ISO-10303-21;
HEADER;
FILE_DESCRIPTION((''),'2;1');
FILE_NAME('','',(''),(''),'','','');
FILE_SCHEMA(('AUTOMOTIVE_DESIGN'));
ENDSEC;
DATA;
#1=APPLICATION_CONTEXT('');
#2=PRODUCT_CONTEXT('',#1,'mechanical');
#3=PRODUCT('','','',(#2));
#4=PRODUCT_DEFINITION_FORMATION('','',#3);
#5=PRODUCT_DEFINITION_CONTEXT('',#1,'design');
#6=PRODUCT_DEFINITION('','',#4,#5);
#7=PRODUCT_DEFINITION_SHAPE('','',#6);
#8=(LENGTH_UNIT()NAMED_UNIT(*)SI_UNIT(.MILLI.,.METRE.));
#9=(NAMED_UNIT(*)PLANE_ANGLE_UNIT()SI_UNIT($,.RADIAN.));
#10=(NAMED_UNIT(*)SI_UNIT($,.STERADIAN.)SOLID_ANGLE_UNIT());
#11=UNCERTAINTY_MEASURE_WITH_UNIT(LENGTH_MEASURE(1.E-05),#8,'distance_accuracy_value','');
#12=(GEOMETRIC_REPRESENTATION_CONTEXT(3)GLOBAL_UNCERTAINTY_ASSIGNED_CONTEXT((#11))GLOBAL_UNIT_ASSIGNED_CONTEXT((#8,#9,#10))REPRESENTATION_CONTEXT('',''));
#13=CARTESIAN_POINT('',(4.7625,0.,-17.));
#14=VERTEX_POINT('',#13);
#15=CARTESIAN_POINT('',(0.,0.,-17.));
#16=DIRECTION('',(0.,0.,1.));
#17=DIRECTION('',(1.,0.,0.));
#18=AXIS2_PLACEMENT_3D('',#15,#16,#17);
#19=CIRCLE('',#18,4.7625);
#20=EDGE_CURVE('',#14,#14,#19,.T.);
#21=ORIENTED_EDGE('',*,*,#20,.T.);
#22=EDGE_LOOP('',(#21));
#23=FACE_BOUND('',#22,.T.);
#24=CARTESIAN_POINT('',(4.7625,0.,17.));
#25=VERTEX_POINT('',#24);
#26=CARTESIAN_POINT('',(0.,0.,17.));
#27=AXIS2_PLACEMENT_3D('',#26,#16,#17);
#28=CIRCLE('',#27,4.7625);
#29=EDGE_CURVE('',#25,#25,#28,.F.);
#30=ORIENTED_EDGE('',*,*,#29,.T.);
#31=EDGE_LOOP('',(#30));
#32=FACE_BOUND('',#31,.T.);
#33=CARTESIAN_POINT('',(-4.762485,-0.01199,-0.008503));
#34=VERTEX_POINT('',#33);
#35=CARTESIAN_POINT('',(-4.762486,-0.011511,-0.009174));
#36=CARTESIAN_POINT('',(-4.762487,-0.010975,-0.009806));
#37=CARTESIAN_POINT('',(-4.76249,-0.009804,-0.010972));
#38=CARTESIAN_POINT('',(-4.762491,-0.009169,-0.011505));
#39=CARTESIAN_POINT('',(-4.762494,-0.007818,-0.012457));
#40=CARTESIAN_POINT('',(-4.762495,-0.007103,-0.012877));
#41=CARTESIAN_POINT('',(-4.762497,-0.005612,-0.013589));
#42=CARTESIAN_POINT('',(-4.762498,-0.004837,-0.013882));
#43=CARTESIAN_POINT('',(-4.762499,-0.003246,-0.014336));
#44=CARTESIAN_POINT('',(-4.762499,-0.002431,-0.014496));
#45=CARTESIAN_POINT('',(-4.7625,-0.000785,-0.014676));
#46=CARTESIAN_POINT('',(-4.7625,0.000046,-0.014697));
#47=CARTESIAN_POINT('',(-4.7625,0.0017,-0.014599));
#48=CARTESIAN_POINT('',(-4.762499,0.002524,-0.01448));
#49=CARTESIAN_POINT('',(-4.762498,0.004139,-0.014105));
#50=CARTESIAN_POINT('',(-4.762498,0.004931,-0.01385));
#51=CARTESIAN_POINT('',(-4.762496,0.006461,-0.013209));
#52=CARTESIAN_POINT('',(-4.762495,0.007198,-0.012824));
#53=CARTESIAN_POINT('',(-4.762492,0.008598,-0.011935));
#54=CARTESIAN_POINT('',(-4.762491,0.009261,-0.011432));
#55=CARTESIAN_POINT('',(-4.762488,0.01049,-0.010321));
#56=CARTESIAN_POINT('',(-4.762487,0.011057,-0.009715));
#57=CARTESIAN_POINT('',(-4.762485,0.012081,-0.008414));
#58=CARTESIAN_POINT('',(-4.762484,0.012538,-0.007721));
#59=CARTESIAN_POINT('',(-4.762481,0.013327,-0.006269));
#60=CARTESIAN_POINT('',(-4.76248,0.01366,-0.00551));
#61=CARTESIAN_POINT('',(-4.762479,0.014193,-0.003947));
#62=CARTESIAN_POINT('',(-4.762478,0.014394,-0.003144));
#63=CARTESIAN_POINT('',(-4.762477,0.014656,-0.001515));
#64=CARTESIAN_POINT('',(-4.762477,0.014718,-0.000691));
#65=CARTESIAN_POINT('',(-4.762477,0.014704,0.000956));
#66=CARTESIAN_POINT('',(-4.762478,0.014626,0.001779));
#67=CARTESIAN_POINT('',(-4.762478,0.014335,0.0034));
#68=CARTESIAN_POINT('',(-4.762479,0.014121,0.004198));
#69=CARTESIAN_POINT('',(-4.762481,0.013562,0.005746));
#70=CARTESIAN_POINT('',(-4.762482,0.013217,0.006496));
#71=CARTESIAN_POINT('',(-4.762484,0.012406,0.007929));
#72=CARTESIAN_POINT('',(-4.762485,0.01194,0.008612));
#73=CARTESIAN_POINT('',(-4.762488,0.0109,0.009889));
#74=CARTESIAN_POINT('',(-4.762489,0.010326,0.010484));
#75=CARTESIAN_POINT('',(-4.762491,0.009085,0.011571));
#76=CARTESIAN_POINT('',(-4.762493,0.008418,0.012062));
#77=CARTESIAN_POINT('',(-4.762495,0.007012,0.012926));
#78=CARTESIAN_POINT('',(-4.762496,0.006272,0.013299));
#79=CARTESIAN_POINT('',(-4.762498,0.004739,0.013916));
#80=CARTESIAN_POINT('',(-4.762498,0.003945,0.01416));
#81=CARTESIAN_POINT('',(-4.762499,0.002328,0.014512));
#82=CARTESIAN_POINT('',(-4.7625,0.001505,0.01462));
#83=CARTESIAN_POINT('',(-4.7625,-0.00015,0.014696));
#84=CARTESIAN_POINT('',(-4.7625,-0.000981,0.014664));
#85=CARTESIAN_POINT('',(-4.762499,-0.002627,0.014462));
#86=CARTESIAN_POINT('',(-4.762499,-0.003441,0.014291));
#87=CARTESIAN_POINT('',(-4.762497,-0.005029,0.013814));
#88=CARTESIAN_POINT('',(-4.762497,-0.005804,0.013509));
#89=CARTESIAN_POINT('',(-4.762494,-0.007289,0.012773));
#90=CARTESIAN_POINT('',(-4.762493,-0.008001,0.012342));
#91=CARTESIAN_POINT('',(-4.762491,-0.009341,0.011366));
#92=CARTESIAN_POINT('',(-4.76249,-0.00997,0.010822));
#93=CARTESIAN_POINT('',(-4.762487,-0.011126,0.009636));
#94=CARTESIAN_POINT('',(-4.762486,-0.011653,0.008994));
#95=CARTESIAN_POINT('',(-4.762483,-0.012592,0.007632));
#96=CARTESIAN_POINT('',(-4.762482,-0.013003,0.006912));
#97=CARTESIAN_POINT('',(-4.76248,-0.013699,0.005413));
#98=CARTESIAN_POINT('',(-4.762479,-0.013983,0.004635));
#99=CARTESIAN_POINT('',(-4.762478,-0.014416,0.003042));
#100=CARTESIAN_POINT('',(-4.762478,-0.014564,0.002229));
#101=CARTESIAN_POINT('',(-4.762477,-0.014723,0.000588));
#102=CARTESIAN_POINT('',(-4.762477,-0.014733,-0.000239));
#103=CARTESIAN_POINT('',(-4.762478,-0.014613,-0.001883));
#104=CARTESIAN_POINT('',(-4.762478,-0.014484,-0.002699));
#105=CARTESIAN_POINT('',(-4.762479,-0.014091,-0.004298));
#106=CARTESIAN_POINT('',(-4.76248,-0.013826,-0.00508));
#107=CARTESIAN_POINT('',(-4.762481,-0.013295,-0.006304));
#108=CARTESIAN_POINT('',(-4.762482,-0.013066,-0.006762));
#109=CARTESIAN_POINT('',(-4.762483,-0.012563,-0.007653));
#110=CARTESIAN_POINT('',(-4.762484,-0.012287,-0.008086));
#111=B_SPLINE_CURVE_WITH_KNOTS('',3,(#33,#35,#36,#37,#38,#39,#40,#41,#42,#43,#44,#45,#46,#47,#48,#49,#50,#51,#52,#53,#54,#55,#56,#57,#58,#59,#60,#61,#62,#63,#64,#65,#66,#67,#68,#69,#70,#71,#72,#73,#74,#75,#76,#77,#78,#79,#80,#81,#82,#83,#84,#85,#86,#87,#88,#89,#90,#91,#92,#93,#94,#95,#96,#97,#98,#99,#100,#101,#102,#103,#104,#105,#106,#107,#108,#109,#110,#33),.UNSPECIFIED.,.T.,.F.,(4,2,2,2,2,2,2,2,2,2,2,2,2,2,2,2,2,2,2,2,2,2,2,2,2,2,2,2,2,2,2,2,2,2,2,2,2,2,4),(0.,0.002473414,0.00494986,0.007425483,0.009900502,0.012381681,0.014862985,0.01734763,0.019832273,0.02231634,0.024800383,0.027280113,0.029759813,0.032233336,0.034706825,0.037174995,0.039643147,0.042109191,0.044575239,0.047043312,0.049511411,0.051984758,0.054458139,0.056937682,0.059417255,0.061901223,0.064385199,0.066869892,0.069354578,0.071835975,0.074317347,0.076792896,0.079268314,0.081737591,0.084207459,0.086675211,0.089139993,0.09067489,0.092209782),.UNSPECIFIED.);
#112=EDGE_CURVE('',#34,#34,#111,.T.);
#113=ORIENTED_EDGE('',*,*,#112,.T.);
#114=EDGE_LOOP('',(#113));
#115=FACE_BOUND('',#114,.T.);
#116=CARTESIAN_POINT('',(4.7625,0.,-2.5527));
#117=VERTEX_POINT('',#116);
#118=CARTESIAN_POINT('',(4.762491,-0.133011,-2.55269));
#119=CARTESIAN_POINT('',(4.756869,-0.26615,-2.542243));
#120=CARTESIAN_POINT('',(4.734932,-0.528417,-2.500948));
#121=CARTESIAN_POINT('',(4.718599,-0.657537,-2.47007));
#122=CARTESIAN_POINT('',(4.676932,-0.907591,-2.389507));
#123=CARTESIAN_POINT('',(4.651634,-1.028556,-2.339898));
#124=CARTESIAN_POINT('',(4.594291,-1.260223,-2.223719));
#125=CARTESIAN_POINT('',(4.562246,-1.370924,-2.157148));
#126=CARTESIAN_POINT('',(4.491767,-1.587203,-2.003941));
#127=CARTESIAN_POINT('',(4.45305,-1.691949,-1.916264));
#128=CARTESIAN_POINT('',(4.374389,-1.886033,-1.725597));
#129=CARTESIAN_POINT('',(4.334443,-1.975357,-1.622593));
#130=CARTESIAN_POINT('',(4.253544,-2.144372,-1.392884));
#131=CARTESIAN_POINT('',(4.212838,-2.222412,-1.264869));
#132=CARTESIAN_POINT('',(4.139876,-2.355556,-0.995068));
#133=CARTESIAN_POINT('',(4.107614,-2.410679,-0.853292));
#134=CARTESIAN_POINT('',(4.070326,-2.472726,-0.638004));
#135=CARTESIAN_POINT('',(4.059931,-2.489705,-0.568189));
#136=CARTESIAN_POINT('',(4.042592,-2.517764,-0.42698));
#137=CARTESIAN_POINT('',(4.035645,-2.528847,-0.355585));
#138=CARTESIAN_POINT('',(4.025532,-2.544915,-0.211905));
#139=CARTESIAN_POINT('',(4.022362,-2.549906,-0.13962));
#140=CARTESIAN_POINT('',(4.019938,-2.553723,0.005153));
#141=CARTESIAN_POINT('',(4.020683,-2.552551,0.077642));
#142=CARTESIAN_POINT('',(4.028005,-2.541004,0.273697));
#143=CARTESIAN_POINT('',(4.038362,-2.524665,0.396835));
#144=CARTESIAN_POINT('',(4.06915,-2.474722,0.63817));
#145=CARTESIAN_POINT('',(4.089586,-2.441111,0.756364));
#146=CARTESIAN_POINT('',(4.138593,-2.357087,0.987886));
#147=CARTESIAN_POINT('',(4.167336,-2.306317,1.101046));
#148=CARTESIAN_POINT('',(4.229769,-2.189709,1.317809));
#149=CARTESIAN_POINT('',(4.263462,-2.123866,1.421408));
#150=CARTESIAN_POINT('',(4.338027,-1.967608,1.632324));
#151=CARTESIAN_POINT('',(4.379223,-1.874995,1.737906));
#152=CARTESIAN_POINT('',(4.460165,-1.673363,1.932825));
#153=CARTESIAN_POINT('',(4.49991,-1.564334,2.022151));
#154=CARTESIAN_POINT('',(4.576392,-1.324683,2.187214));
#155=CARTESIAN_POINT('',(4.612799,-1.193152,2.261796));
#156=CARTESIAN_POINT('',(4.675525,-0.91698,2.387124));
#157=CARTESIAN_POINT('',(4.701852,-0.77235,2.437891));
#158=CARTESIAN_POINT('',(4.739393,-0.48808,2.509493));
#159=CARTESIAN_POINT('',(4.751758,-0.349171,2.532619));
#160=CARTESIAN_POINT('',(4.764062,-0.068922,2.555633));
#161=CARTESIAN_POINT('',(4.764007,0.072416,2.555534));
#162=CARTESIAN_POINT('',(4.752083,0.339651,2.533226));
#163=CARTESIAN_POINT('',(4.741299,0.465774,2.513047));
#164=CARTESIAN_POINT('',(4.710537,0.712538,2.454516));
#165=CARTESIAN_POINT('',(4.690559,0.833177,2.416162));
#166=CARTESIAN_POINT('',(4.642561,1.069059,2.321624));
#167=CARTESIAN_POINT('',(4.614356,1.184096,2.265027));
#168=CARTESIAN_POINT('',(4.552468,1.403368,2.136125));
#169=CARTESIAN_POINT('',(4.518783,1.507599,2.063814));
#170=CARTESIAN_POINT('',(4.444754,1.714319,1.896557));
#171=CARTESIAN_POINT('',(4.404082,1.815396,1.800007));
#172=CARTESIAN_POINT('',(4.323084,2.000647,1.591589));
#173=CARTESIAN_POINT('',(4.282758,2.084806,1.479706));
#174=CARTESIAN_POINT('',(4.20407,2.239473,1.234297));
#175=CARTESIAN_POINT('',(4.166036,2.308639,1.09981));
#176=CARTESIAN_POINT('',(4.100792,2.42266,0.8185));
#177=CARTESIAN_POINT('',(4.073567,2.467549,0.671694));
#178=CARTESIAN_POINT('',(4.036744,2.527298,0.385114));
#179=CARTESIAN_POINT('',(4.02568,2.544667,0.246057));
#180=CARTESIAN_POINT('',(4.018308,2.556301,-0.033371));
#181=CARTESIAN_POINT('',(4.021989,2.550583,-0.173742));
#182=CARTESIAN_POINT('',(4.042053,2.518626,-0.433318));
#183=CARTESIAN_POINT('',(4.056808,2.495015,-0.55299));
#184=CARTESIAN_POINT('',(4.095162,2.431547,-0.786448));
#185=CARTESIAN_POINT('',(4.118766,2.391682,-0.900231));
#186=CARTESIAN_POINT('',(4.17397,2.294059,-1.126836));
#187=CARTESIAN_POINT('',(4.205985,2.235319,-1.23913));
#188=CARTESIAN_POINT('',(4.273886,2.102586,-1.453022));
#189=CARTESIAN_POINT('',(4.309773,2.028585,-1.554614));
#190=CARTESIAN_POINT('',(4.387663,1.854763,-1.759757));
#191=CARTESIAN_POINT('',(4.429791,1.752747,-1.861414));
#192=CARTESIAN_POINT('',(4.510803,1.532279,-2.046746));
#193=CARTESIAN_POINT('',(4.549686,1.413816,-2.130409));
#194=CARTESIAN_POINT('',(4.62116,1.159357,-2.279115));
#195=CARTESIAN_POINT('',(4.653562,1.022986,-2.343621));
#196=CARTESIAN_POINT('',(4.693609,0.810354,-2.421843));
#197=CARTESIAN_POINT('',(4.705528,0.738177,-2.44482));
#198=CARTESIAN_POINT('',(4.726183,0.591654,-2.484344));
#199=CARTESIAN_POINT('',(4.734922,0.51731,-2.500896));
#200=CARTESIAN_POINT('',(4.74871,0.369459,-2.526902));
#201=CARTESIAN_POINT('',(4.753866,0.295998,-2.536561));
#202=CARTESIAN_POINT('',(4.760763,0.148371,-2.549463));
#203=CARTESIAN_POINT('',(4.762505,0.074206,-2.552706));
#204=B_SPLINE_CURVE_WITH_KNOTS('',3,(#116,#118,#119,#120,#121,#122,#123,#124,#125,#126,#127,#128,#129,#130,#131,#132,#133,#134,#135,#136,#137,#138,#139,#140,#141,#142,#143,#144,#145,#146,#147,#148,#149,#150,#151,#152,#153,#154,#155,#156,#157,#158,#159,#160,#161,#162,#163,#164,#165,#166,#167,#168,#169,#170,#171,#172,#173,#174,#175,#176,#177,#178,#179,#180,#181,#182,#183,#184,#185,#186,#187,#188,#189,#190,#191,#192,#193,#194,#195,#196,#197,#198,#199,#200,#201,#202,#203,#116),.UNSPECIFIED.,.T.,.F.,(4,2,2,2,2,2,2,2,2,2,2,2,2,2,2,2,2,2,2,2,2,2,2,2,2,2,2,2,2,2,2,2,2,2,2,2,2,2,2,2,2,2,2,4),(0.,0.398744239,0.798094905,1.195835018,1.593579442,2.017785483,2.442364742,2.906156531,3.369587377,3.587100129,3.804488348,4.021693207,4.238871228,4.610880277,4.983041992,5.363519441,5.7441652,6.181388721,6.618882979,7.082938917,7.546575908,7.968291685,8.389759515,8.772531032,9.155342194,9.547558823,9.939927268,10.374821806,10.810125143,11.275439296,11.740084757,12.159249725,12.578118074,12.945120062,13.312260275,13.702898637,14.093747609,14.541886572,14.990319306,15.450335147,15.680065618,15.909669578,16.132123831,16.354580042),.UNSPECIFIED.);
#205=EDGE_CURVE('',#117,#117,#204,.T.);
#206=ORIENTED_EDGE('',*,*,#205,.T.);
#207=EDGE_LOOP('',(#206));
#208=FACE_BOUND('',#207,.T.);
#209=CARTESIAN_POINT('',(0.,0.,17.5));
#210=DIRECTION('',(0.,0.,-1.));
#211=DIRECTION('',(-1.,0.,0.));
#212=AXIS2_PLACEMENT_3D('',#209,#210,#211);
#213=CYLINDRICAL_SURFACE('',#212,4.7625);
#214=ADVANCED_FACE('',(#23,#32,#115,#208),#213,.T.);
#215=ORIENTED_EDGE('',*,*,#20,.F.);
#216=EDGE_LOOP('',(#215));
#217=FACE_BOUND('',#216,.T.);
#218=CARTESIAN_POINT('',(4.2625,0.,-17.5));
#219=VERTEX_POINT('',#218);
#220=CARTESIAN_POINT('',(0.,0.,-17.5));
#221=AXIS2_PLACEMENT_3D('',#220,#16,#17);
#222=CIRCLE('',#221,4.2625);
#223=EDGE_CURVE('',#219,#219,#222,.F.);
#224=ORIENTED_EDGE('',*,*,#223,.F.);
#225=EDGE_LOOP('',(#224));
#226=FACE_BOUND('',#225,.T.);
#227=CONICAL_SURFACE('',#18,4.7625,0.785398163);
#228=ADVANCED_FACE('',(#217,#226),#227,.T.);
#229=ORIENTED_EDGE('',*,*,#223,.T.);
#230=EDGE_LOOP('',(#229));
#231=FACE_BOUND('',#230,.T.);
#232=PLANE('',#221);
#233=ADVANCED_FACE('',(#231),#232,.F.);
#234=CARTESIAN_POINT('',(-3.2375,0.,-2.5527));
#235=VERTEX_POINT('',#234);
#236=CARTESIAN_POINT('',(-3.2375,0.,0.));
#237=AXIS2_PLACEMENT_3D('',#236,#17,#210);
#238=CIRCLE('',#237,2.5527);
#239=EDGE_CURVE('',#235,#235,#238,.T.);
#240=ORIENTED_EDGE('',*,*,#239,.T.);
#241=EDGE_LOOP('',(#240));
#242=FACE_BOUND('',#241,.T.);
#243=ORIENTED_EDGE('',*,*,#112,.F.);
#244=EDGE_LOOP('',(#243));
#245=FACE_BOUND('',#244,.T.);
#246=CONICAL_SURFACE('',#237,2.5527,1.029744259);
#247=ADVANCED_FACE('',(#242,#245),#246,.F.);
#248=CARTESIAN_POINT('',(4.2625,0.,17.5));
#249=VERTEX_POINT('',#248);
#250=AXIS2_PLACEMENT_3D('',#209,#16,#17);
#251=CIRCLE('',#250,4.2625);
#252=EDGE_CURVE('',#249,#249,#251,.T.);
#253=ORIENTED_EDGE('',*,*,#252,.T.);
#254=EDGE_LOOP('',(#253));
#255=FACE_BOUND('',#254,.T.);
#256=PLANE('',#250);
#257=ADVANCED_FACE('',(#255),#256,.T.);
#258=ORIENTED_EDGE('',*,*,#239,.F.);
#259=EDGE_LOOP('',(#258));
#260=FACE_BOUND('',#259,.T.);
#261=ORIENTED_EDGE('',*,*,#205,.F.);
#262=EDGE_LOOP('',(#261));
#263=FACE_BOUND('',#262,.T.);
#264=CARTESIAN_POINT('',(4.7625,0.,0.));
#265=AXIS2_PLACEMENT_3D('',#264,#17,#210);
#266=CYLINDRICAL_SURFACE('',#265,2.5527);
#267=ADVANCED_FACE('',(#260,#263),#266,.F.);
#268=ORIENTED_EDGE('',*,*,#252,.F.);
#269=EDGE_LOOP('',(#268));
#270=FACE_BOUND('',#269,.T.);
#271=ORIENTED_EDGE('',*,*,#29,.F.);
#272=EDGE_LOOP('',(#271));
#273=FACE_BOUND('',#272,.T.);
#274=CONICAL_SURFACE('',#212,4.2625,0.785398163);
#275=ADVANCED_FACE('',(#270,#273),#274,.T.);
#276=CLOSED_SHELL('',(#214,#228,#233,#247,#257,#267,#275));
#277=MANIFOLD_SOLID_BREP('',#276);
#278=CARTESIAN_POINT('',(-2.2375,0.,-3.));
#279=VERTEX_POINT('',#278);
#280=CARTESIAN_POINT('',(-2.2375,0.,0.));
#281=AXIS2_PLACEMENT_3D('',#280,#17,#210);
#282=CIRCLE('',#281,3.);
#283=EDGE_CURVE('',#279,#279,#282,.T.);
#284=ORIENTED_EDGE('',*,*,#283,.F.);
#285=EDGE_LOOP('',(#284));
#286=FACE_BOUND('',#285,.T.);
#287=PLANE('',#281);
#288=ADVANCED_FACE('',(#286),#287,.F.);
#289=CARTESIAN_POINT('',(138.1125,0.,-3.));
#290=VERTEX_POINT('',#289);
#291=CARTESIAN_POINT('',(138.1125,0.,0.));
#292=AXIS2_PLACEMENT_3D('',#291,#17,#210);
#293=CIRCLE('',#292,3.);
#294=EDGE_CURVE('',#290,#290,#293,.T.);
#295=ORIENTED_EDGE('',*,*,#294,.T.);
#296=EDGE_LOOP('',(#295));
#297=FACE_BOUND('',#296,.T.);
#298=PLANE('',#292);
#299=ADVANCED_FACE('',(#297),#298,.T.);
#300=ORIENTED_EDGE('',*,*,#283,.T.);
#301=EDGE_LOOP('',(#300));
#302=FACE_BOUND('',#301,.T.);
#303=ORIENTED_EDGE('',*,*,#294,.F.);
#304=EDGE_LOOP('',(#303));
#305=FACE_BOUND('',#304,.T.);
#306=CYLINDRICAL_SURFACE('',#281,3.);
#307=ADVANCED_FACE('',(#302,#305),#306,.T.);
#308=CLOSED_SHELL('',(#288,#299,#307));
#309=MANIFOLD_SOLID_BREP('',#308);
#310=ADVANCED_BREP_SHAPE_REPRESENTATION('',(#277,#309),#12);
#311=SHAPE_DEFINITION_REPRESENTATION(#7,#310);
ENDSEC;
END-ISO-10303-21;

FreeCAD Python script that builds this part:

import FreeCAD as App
import Part
import Sketcher

V = App.Vector


def edges_at(feature, points):
    """Names of the edges that pass closest to the given points."""
    edges = feature.Shape.Edges
    near = lambda p: min(range(len(edges)), key=lambda i: edges[i].distToShape(Part.Vertex(*p))[0])
    return sorted({f"Edge{near(p) + 1}" for p in points})

doc = App.newDocument("Part")
params = doc.addObject("Spreadsheet::Sheet", "Params")
for row, (alias, value) in enumerate([
    ("pad1_length", "35 mm"),
    ("hole_diameter", "5.1054 mm"),
    ("hole_depth", "8 mm"),
    ("chamfer_size", "0.5 mm"),
    ("sketch3_diameter", "6 mm"),
    ("pad2_length", "133.35 mm"),
    ("pad2_length2", "7 mm"),
], start=1):
    params.set(f"A{row}", alias)
    params.set(f"B{row}", "=" + value)
    params.setAlias(f"B{row}", alias)

body = doc.addObject("PartDesign::Body", "Body")

sketch1 = doc.addObject("Sketcher::SketchObject", "Sketch")
body.addObject(sketch1)
sketch1.AttachmentSupport = (doc.XY_Plane, [""])
sketch1.MapMode = "FlatFace"
sketch1.addGeometry(Part.Circle(V(0, 0, 0), V(0, 0, 1), 4.8), False)
sketch1.addConstraint(Sketcher.Constraint("Coincident", 0, 3, -1, 1))
sketch1.addConstraint(Sketcher.Constraint("Diameter", 0, 9.525))
pad1 = doc.addObject("PartDesign::Pad", "Pad")
body.addObject(pad1)
pad1.Profile = sketch1
pad1.setExpression("Length", "Params.pad1_length")
pad1.Midplane = True

sketch2 = doc.addObject("Sketcher::SketchObject", "Sketch001")
body.addObject(sketch2)
sketch2.AttachmentSupport = (doc.YZ_Plane, [""])
sketch2.MapMode = "FlatFace"
sketch2.AttachmentOffset = App.Placement(V(0, 0, 4.7625), App.Rotation())
sketch2.addGeometry(Part.Circle(V(0, 0, 0), V(0, 0, 1), 2.6), False)
sketch2.addConstraint(Sketcher.Constraint("Coincident", 0, 3, -1, 1))
sketch2.addConstraint(Sketcher.Constraint("Diameter", 0, 5.1054))
doc.recompute()
hole = doc.addObject("PartDesign::Hole", "Hole")
body.addObject(hole)
hole.Profile = sketch2
hole.ThreadType = "None"
hole.setExpression("Diameter", "Params.hole_diameter")
hole.DepthType = "Dimension"
hole.setExpression("Depth", "Params.hole_depth")
hole.DrillPoint = "Angled"
hole.DrillPointAngle = 118
doc.recompute()

chamfer = doc.addObject("PartDesign::Chamfer", "Chamfer")
body.addObject(chamfer)
chamfer.Base = (hole, edges_at(hole, [(-4.763, 0, -17.5), (-4.763, 0, 17.5)]))
chamfer.setExpression("Size", "Params.chamfer_size")
body2 = doc.addObject("PartDesign::Body", "Body001")

sketch3 = doc.addObject("Sketcher::SketchObject", "Sketch002")
body2.addObject(sketch3)
sketch3.AttachmentSupport = (doc.getObject("YZ_Plane001"), [""])
sketch3.MapMode = "FlatFace"
sketch3.AttachmentOffset = App.Placement(V(0, 0, 4.7625), App.Rotation())
sketch3.addGeometry(Part.Circle(V(0, 0, 0), V(0, 0, 1), 3), False)
sketch3.addConstraint(Sketcher.Constraint("Coincident", 0, 3, -1, 1))
sketch3.addConstraint(Sketcher.Constraint("Diameter", 0, 6.0))
sketch3.setExpression("Constraints[1]", "Params.sketch3_diameter")
pad2 = doc.addObject("PartDesign::Pad", "Pad001")
body2.addObject(pad2)
pad2.Profile = sketch3
pad2.Type = "TwoLengths"
pad2.setExpression("Length", "Params.pad2_length")
pad2.setExpression("Length2", "Params.pad2_length2")

doc.recompute()
